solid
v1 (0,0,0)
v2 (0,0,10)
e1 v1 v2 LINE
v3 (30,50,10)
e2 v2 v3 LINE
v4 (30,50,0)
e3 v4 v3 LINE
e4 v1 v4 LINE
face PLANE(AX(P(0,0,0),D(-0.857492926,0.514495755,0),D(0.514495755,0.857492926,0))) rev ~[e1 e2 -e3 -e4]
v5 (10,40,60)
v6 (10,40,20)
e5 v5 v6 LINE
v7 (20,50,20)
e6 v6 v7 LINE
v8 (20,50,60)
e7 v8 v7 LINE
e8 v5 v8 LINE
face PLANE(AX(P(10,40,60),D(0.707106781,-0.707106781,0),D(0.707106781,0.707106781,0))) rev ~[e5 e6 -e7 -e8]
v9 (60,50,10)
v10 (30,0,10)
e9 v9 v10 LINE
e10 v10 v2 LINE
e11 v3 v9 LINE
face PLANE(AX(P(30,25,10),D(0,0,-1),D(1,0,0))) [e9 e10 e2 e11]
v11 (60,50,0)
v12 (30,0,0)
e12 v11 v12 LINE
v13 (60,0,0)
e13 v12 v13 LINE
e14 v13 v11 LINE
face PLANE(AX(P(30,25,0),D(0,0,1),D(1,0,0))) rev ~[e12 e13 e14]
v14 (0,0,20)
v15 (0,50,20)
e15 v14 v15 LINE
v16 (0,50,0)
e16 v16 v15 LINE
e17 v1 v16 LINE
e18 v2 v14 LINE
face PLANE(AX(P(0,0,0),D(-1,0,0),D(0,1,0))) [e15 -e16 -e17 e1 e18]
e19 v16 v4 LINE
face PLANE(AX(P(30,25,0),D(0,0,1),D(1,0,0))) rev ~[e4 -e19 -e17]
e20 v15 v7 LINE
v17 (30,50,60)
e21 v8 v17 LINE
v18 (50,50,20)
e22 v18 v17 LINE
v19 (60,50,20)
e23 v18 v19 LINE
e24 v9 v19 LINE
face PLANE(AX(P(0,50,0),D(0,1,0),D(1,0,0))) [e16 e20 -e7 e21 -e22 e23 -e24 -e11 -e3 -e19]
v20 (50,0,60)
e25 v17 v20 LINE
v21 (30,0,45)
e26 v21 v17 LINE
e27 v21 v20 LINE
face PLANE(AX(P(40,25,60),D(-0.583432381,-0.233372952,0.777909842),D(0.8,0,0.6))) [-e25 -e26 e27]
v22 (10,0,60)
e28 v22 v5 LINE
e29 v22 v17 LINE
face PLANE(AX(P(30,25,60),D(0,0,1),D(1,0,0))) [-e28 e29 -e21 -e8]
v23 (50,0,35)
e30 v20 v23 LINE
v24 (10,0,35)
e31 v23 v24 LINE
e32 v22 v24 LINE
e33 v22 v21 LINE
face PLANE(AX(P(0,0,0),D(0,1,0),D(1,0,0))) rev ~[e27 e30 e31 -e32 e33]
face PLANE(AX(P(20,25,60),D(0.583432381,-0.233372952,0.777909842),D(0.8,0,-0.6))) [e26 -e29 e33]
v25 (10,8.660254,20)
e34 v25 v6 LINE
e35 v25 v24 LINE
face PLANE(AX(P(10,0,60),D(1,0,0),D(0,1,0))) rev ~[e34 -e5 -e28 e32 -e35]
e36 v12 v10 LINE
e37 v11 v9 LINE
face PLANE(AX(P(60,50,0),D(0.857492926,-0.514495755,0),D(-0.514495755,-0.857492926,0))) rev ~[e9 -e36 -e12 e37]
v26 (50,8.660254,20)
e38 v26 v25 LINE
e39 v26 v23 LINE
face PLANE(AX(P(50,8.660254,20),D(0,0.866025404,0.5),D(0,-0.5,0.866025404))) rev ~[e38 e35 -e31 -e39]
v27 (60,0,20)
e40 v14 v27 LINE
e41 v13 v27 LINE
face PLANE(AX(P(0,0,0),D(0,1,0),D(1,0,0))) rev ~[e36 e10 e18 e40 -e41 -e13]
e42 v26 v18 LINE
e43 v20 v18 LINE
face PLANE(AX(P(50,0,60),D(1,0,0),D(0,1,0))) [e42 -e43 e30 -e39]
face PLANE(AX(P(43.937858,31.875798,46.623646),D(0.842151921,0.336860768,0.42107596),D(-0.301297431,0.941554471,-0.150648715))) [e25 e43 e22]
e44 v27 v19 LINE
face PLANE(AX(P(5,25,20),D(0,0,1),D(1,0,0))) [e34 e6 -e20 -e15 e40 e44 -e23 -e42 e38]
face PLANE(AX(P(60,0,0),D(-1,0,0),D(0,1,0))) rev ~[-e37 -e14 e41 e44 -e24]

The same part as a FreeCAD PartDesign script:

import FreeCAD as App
import Part
import Sketcher
Q = App.Units.Quantity

doc = App.newDocument("Part")
params = doc.addObject("Spreadsheet::Sheet", "Params")
for row, (alias, value) in enumerate([
    ("sketch1_width", "60 mm"),
    ("sketch1_height", "50 mm"),
    ("pad1_length", "60 mm"),
    ("sketch2_width", "10 mm"),
    ("sketch2_height", "50 mm"),
    ("pocket1_length", "40 mm"),
    ("sketch3_width", "10 mm"),
    ("pocket2_length", "40 mm"),
    ("sketch4_width", "10 mm"),
    ("sketch4_height", "50 mm"),
    ("pocket3_length", "40 mm"),
    ("sketch5_width", "40 mm"),
    ("sketch5_length", "25 mm"),
    ("sketch7_width", "30 mm"),
    ("pocket4_length", "10 mm"),
    ("sketch8_height", "15 mm"),
    ("pocket6_length", "25 mm"),
], start=1):
    params.set(f"A{row}", alias)
    params.set(f"B{row}", "=" + value)
    params.setAlias(f"B{row}", alias)

body = doc.addObject("PartDesign::Body", "Body")

sketch1 = body.newObject("Sketcher::SketchObject", "Sketch")
sketch1.AttachmentSupport = (doc.getObject("XY_Plane"), [""])
sketch1.MapMode = "FlatFace"
sketch1.addGeometry([
    Part.LineSegment(App.Vector(0, 50, 0), App.Vector(0, 0, 0)),
    Part.LineSegment(App.Vector(0, 0, 0), App.Vector(60, 0, 0)),
    Part.LineSegment(App.Vector(60, 0, 0), App.Vector(60, 50, 0)),
    Part.LineSegment(App.Vector(60, 50, 0), App.Vector(0, 50, 0)),
], False)
sketch1.addConstraint([
    Sketcher.Constraint("Coincident", 0, 2, 1, 1),
    Sketcher.Constraint("Coincident", 1, 2, 2, 1),
    Sketcher.Constraint("Coincident", 2, 2, 3, 1),
    Sketcher.Constraint("Coincident", 3, 2, 0, 1),
    Sketcher.Constraint("Vertical", 0),
    Sketcher.Constraint("Horizontal", 1),
    Sketcher.Constraint("Vertical", 2),
    Sketcher.Constraint("Horizontal", 3),
    Sketcher.Constraint("Coincident", 0, 2, -1, 1),
    Sketcher.Constraint("DistanceX", 1, 1, 1, 2, Q("60 mm")),
    Sketcher.Constraint("DistanceY", 0, 2, 0, 1, Q("50 mm")),
])
sketch1.setExpression("Constraints[9]", "Params.sketch1_width")
sketch1.setExpression("Constraints[10]", "Params.sketch1_height")
pad1 = body.newObject("PartDesign::Pad", "Pad")
pad1.Profile = sketch1
pad1.setExpression("Length", "Params.pad1_length")

sketch2 = body.newObject("Sketcher::SketchObject", "Sketch001")
sketch2.AttachmentSupport = (doc.getObject("XY_Plane"), [""])
sketch2.MapMode = "FlatFace"
sketch2.AttachmentOffset = App.Placement(App.Vector(0, 0, 60), App.Rotation())
sketch2.addGeometry([
    Part.LineSegment(App.Vector(0, 50, 0), App.Vector(0, 0, 0)),
    Part.LineSegment(App.Vector(0, 0, 0), App.Vector(10, 0, 0)),
    Part.LineSegment(App.Vector(10, 0, 0), App.Vector(10, 50, 0)),
    Part.LineSegment(App.Vector(10, 50, 0), App.Vector(0, 50, 0)),
], False)
sketch2.addConstraint([
    Sketcher.Constraint("Coincident", 0, 2, 1, 1),
    Sketcher.Constraint("Coincident", 1, 2, 2, 1),
    Sketcher.Constraint("Coincident", 2, 2, 3, 1),
    Sketcher.Constraint("Coincident", 3, 2, 0, 1),
    Sketcher.Constraint("Vertical", 0),
    Sketcher.Constraint("Horizontal", 1),
    Sketcher.Constraint("Vertical", 2),
    Sketcher.Constraint("Horizontal", 3),
    Sketcher.Constraint("Coincident", 0, 2, -1, 1),
    Sketcher.Constraint("DistanceX", 1, 1, 1, 2, Q("10 mm")),
    Sketcher.Constraint("DistanceY", 0, 2, 0, 1, Q("50 mm")),
])
sketch2.setExpression("Constraints[9]", "Params.sketch2_width")
sketch2.setExpression("Constraints[10]", "Params.sketch2_height")
pocket1 = body.newObject("PartDesign::Pocket", "Pocket")
pocket1.Profile = sketch2
pocket1.setExpression("Length", "Params.pocket1_length")

sketch3 = body.newObject("Sketcher::SketchObject", "Sketch002")
sketch3.AttachmentSupport = (doc.getObject("XY_Plane"), [""])
sketch3.MapMode = "FlatFace"
sketch3.AttachmentOffset = App.Placement(App.Vector(0, 0, 60), App.Rotation())
sketch3.addGeometry([
    Part.LineSegment(App.Vector(20, 50, 0), App.Vector(10, 50, 0)),
    Part.LineSegment(App.Vector(10, 50, 0), App.Vector(10, 40, 0)),
    Part.LineSegment(App.Vector(10, 40, 0), App.Vector(20, 50, 0)),
], False)
sketch3.addConstraint([
    Sketcher.Constraint("Coincident", 0, 2, 1, 1),
    Sketcher.Constraint("Coincident", 1, 2, 2, 1),
    Sketcher.Constraint("Coincident", 2, 2, 0, 1),
    Sketcher.Constraint("Horizontal", 0),
    Sketcher.Constraint("Vertical", 1),
    Sketcher.Constraint("Equal", 0, 1),
    Sketcher.Constraint("DistanceX", 0, 2, 0, 1, Q("10 mm")),
    Sketcher.Constraint("DistanceX", -1, 1, 0, 2, Q("10 mm")),
    Sketcher.Constraint("DistanceY", -1, 1, 0, 2, Q("50 mm")),
])
sketch3.setExpression("Constraints[6]", "Params.sketch3_width")
pocket2 = body.newObject("PartDesign::Pocket", "Pocket001")
pocket2.Profile = sketch3
pocket2.setExpression("Length", "Params.pocket2_length")

sketch4 = body.newObject("Sketcher::SketchObject", "Sketch003")
sketch4.AttachmentSupport = (doc.getObject("XY_Plane"), [""])
sketch4.MapMode = "FlatFace"
sketch4.AttachmentOffset = App.Placement(App.Vector(0, 0, 60), App.Rotation())
sketch4.addGeometry([
    Part.LineSegment(App.Vector(50, 50, 0), App.Vector(50, 0, 0)),
    Part.LineSegment(App.Vector(50, 0, 0), App.Vector(60, 0, 0)),
    Part.LineSegment(App.Vector(60, 0, 0), App.Vector(60, 50, 0)),
    Part.LineSegment(App.Vector(60, 50, 0), App.Vector(50, 50, 0)),
], False)
sketch4.addConstraint([
    Sketcher.Constraint("Coincident", 0, 2, 1, 1),
    Sketcher.Constraint("Coincident", 1, 2, 2, 1),
    Sketcher.Constraint("Coincident", 2, 2, 3, 1),
    Sketcher.Constraint("Coincident", 3, 2, 0, 1),
    Sketcher.Constraint("Vertical", 0),
    Sketcher.Constraint("Horizontal", 1),
    Sketcher.Constraint("Vertical", 2),
    Sketcher.Constraint("Horizontal", 3),
    Sketcher.Constraint("PointOnObject", 0, 2, -1),
    Sketcher.Constraint("DistanceX", 1, 1, 1, 2, Q("10 mm")),
    Sketcher.Constraint("DistanceY", 0, 2, 0, 1, Q("50 mm")),
    Sketcher.Constraint("DistanceX", -1, 1, 0, 2, Q("50 mm")),
])
sketch4.setExpression("Constraints[9]", "Params.sketch4_width")
sketch4.setExpression("Constraints[10]", "Params.sketch4_height")
pocket3 = body.newObject("PartDesign::Pocket", "Pocket002")
pocket3.Profile = sketch4
pocket3.setExpression("Length", "Params.pocket3_length")

sketch5 = body.newObject("Sketcher::SketchObject", "Sketch004")
sketch5.AttachmentSupport = (doc.getObject("XZ_Plane"), [""])
sketch5.MapMode = "FlatFace"
sketch5.addGeometry([
    Part.LineSegment(App.Vector(50, 60, 0), App.Vector(10, 60, 0)),
    Part.LineSegment(App.Vector(10, 60, 0), App.Vector(30, 45, 0)),
    Part.LineSegment(App.Vector(30, 45, 0), App.Vector(50, 60, 0)),
], False)
sketch5.addConstraint([
    Sketcher.Constraint("Coincident", 0, 2, 1, 1),
    Sketcher.Constraint("Coincident", 1, 2, 2, 1),
    Sketcher.Constraint("Coincident", 2, 2, 0, 1),
    Sketcher.Constraint("Horizontal", 0),
    Sketcher.Constraint("Equal", 1, 2),
    Sketcher.Constraint("DistanceX", 0, 2, 0, 1, Q("40 mm")),
    Sketcher.Constraint("Distance", 1, Q("25 mm")),
    Sketcher.Constraint("DistanceX", -1, 1, 0, 2, Q("10 mm")),
    Sketcher.Constraint("DistanceY", -1, 1, 0, 2, Q("60 mm")),
])
sketch5.setExpression("Constraints[5]", "Params.sketch5_width")
sketch5.setExpression("Constraints[6]", "Params.sketch5_length")

sketch6 = body.newObject("Sketcher::SketchObject", "Sketch005")
sketch6.Placement = App.Placement(App.Vector(0, -12.385321, 41.284404), App.Rotation(App.Vector(0, 0.957826285, 0.287347886), App.Vector(1, 0, 0), App.Vector(0, 0.287347886, -0.957826285), "ZXY"))
sketch6.addGeometry(Part.LineSegment(App.Vector(13, 30, 0), App.Vector(65, 30, 0)), False)
sketch6.addConstraint([
    Sketcher.Constraint("Horizontal", 0),
    Sketcher.Constraint("DistanceY", -1, 1, 0, 1, Q("30 mm")),
    Sketcher.Constraint("DistanceX", 0, 1, 0, 2, Q("52.201533 mm")),
    Sketcher.Constraint("DistanceX", -1, 1, 0, 1, Q("12.930655 mm")),
])
doc.recompute()

subtractivepipe = body.newObject("PartDesign::SubtractivePipe", "SubtractivePipe")
subtractivepipe.Profile = sketch5
subtractivepipe.Spine = (sketch6, ["Edge1"])

sketch7 = body.newObject("Sketcher::SketchObject", "Sketch006")
sketch7.AttachmentSupport = (doc.getObject("XY_Plane"), [""])
sketch7.MapMode = "FlatFace"
sketch7.addGeometry([
    Part.LineSegment(App.Vector(30, 0, 0), App.Vector(0, 0, 0)),
    Part.LineSegment(App.Vector(0, 0, 0), App.Vector(30, 50, 0)),
    Part.LineSegment(App.Vector(30, 50, 0), App.Vector(60, 50, 0)),
    Part.LineSegment(App.Vector(60, 50, 0), App.Vector(30, 0, 0)),
], False)
sketch7.addConstraint([
    Sketcher.Constraint("Coincident", 0, 2, 1, 1),
    Sketcher.Constraint("Coincident", 1, 2, 2, 1),
    Sketcher.Constraint("Coincident", 2, 2, 3, 1),
    Sketcher.Constraint("Coincident", 3, 2, 0, 1),
    Sketcher.Constraint("Horizontal", 0),
    Sketcher.Constraint("Horizontal", 2),
    Sketcher.Constraint("Coincident", 0, 2, -1, 1),
    Sketcher.Constraint("Parallel", 1, 3),
    Sketcher.Constraint("Vertical", 1, 2, 3, 2),
    Sketcher.Constraint("DistanceX", 0, 2, 0, 1, Q("30 mm")),
    Sketcher.Constraint("DistanceY", -1, 1, 1, 2, Q("50 mm")),
])
sketch7.setExpression("Constraints[9]", "Params.sketch7_width")
pocket4 = body.newObject("PartDesign::Pocket", "Pocket003")
pocket4.Profile = sketch7
pocket4.setExpression("Length", "Params.pocket4_length")
pocket4.Reversed = True

sketch8 = body.newObject("Sketcher::SketchObject", "Sketch007")
sketch8.AttachmentSupport = (doc.getObject("YZ_Plane"), [""])
sketch8.MapMode = "FlatFace"
sketch8.AttachmentOffset = App.Placement(App.Vector(0, 0, 50), App.Rotation())
sketch8.addGeometry([
    Part.LineSegment(App.Vector(0, 35, 0), App.Vector(0, 20, 0)),
    Part.LineSegment(App.Vector(0, 20, 0), App.Vector(9, 20, 0)),
    Part.LineSegment(App.Vector(9, 20, 0), App.Vector(0, 35, 0)),
], False)
sketch8.addConstraint([
    Sketcher.Constraint("Coincident", 0, 2, 1, 1),
    Sketcher.Constraint("Coincident", 1, 2, 2, 1),
    Sketcher.Constraint("Coincident", 2, 2, 0, 1),
    Sketcher.Constraint("Vertical", 0),
    Sketcher.Constraint("Horizontal", 1),
    Sketcher.Constraint("PointOnObject", 0, 2, -2),
    Sketcher.Constraint("DistanceY", 0, 2, 0, 1, Q("15 mm")),
    Sketcher.Constraint("Angle", 2, Q("120 deg")),
    Sketcher.Constraint("DistanceY", -1, 1, 0, 2, Q("20 mm")),
])
sketch8.setExpression("Constraints[6]", "Params.sketch8_height")
pocket5 = body.newObject("PartDesign::Pocket", "Pocket004")
pocket5.Profile = sketch8
pocket5.Type = "ThroughAll"

sketch9 = body.newObject("Sketcher::SketchObject", "Sketch008")
sketch9.Placement = App.Placement(App.Vector(56.737589, 22.695035, 28.368794), App.Rotation(App.Vector(-0.301297431, 0.941554471, -0.150648715), App.Vector(-0.447213595, 0, 0.89442719), App.Vector(0.842151921, 0.336860768, 0.42107596), "ZXY"))
sketch9.addGeometry([
    Part.LineSegment(App.Vector(29, 40, 0), App.Vector(-24, 31, 0)),
    Part.LineSegment(App.Vector(-24, 31, 0), App.Vector(29, -4, 0)),
    Part.LineSegment(App.Vector(29, -4, 0), App.Vector(29, 40, 0)),
], False)
sketch9.addConstraint([
    Sketcher.Constraint("Coincident", 0, 2, 1, 1),
    Sketcher.Constraint("Coincident", 1, 2, 2, 1),
    Sketcher.Constraint("Coincident", 2, 2, 0, 1),
    Sketcher.Constraint("Vertical", 2),
    Sketcher.Constraint("DistanceY", 2, 1, 2, 2, Q("44.721359 mm")),
    Sketcher.Constraint("Distance", 0, Q("53.851648 mm")),
    Sketcher.Constraint("DistanceY", -1, 1, 0, 2, Q("31.304952 mm")),
    Sketcher.Constraint("DistanceY", 0, 2, 2, 2, Q("8.944272 mm")),
    Sketcher.Constraint("DistanceX", 0, 2, -1, 1, Q("24.103794 mm")),
])
pocket6 = body.newObject("PartDesign::Pocket", "Pocket005")
pocket6.Profile = sketch9
pocket6.setExpression("Length", "Params.pocket6_length")
pocket6.Reversed = True

doc.recompute()
